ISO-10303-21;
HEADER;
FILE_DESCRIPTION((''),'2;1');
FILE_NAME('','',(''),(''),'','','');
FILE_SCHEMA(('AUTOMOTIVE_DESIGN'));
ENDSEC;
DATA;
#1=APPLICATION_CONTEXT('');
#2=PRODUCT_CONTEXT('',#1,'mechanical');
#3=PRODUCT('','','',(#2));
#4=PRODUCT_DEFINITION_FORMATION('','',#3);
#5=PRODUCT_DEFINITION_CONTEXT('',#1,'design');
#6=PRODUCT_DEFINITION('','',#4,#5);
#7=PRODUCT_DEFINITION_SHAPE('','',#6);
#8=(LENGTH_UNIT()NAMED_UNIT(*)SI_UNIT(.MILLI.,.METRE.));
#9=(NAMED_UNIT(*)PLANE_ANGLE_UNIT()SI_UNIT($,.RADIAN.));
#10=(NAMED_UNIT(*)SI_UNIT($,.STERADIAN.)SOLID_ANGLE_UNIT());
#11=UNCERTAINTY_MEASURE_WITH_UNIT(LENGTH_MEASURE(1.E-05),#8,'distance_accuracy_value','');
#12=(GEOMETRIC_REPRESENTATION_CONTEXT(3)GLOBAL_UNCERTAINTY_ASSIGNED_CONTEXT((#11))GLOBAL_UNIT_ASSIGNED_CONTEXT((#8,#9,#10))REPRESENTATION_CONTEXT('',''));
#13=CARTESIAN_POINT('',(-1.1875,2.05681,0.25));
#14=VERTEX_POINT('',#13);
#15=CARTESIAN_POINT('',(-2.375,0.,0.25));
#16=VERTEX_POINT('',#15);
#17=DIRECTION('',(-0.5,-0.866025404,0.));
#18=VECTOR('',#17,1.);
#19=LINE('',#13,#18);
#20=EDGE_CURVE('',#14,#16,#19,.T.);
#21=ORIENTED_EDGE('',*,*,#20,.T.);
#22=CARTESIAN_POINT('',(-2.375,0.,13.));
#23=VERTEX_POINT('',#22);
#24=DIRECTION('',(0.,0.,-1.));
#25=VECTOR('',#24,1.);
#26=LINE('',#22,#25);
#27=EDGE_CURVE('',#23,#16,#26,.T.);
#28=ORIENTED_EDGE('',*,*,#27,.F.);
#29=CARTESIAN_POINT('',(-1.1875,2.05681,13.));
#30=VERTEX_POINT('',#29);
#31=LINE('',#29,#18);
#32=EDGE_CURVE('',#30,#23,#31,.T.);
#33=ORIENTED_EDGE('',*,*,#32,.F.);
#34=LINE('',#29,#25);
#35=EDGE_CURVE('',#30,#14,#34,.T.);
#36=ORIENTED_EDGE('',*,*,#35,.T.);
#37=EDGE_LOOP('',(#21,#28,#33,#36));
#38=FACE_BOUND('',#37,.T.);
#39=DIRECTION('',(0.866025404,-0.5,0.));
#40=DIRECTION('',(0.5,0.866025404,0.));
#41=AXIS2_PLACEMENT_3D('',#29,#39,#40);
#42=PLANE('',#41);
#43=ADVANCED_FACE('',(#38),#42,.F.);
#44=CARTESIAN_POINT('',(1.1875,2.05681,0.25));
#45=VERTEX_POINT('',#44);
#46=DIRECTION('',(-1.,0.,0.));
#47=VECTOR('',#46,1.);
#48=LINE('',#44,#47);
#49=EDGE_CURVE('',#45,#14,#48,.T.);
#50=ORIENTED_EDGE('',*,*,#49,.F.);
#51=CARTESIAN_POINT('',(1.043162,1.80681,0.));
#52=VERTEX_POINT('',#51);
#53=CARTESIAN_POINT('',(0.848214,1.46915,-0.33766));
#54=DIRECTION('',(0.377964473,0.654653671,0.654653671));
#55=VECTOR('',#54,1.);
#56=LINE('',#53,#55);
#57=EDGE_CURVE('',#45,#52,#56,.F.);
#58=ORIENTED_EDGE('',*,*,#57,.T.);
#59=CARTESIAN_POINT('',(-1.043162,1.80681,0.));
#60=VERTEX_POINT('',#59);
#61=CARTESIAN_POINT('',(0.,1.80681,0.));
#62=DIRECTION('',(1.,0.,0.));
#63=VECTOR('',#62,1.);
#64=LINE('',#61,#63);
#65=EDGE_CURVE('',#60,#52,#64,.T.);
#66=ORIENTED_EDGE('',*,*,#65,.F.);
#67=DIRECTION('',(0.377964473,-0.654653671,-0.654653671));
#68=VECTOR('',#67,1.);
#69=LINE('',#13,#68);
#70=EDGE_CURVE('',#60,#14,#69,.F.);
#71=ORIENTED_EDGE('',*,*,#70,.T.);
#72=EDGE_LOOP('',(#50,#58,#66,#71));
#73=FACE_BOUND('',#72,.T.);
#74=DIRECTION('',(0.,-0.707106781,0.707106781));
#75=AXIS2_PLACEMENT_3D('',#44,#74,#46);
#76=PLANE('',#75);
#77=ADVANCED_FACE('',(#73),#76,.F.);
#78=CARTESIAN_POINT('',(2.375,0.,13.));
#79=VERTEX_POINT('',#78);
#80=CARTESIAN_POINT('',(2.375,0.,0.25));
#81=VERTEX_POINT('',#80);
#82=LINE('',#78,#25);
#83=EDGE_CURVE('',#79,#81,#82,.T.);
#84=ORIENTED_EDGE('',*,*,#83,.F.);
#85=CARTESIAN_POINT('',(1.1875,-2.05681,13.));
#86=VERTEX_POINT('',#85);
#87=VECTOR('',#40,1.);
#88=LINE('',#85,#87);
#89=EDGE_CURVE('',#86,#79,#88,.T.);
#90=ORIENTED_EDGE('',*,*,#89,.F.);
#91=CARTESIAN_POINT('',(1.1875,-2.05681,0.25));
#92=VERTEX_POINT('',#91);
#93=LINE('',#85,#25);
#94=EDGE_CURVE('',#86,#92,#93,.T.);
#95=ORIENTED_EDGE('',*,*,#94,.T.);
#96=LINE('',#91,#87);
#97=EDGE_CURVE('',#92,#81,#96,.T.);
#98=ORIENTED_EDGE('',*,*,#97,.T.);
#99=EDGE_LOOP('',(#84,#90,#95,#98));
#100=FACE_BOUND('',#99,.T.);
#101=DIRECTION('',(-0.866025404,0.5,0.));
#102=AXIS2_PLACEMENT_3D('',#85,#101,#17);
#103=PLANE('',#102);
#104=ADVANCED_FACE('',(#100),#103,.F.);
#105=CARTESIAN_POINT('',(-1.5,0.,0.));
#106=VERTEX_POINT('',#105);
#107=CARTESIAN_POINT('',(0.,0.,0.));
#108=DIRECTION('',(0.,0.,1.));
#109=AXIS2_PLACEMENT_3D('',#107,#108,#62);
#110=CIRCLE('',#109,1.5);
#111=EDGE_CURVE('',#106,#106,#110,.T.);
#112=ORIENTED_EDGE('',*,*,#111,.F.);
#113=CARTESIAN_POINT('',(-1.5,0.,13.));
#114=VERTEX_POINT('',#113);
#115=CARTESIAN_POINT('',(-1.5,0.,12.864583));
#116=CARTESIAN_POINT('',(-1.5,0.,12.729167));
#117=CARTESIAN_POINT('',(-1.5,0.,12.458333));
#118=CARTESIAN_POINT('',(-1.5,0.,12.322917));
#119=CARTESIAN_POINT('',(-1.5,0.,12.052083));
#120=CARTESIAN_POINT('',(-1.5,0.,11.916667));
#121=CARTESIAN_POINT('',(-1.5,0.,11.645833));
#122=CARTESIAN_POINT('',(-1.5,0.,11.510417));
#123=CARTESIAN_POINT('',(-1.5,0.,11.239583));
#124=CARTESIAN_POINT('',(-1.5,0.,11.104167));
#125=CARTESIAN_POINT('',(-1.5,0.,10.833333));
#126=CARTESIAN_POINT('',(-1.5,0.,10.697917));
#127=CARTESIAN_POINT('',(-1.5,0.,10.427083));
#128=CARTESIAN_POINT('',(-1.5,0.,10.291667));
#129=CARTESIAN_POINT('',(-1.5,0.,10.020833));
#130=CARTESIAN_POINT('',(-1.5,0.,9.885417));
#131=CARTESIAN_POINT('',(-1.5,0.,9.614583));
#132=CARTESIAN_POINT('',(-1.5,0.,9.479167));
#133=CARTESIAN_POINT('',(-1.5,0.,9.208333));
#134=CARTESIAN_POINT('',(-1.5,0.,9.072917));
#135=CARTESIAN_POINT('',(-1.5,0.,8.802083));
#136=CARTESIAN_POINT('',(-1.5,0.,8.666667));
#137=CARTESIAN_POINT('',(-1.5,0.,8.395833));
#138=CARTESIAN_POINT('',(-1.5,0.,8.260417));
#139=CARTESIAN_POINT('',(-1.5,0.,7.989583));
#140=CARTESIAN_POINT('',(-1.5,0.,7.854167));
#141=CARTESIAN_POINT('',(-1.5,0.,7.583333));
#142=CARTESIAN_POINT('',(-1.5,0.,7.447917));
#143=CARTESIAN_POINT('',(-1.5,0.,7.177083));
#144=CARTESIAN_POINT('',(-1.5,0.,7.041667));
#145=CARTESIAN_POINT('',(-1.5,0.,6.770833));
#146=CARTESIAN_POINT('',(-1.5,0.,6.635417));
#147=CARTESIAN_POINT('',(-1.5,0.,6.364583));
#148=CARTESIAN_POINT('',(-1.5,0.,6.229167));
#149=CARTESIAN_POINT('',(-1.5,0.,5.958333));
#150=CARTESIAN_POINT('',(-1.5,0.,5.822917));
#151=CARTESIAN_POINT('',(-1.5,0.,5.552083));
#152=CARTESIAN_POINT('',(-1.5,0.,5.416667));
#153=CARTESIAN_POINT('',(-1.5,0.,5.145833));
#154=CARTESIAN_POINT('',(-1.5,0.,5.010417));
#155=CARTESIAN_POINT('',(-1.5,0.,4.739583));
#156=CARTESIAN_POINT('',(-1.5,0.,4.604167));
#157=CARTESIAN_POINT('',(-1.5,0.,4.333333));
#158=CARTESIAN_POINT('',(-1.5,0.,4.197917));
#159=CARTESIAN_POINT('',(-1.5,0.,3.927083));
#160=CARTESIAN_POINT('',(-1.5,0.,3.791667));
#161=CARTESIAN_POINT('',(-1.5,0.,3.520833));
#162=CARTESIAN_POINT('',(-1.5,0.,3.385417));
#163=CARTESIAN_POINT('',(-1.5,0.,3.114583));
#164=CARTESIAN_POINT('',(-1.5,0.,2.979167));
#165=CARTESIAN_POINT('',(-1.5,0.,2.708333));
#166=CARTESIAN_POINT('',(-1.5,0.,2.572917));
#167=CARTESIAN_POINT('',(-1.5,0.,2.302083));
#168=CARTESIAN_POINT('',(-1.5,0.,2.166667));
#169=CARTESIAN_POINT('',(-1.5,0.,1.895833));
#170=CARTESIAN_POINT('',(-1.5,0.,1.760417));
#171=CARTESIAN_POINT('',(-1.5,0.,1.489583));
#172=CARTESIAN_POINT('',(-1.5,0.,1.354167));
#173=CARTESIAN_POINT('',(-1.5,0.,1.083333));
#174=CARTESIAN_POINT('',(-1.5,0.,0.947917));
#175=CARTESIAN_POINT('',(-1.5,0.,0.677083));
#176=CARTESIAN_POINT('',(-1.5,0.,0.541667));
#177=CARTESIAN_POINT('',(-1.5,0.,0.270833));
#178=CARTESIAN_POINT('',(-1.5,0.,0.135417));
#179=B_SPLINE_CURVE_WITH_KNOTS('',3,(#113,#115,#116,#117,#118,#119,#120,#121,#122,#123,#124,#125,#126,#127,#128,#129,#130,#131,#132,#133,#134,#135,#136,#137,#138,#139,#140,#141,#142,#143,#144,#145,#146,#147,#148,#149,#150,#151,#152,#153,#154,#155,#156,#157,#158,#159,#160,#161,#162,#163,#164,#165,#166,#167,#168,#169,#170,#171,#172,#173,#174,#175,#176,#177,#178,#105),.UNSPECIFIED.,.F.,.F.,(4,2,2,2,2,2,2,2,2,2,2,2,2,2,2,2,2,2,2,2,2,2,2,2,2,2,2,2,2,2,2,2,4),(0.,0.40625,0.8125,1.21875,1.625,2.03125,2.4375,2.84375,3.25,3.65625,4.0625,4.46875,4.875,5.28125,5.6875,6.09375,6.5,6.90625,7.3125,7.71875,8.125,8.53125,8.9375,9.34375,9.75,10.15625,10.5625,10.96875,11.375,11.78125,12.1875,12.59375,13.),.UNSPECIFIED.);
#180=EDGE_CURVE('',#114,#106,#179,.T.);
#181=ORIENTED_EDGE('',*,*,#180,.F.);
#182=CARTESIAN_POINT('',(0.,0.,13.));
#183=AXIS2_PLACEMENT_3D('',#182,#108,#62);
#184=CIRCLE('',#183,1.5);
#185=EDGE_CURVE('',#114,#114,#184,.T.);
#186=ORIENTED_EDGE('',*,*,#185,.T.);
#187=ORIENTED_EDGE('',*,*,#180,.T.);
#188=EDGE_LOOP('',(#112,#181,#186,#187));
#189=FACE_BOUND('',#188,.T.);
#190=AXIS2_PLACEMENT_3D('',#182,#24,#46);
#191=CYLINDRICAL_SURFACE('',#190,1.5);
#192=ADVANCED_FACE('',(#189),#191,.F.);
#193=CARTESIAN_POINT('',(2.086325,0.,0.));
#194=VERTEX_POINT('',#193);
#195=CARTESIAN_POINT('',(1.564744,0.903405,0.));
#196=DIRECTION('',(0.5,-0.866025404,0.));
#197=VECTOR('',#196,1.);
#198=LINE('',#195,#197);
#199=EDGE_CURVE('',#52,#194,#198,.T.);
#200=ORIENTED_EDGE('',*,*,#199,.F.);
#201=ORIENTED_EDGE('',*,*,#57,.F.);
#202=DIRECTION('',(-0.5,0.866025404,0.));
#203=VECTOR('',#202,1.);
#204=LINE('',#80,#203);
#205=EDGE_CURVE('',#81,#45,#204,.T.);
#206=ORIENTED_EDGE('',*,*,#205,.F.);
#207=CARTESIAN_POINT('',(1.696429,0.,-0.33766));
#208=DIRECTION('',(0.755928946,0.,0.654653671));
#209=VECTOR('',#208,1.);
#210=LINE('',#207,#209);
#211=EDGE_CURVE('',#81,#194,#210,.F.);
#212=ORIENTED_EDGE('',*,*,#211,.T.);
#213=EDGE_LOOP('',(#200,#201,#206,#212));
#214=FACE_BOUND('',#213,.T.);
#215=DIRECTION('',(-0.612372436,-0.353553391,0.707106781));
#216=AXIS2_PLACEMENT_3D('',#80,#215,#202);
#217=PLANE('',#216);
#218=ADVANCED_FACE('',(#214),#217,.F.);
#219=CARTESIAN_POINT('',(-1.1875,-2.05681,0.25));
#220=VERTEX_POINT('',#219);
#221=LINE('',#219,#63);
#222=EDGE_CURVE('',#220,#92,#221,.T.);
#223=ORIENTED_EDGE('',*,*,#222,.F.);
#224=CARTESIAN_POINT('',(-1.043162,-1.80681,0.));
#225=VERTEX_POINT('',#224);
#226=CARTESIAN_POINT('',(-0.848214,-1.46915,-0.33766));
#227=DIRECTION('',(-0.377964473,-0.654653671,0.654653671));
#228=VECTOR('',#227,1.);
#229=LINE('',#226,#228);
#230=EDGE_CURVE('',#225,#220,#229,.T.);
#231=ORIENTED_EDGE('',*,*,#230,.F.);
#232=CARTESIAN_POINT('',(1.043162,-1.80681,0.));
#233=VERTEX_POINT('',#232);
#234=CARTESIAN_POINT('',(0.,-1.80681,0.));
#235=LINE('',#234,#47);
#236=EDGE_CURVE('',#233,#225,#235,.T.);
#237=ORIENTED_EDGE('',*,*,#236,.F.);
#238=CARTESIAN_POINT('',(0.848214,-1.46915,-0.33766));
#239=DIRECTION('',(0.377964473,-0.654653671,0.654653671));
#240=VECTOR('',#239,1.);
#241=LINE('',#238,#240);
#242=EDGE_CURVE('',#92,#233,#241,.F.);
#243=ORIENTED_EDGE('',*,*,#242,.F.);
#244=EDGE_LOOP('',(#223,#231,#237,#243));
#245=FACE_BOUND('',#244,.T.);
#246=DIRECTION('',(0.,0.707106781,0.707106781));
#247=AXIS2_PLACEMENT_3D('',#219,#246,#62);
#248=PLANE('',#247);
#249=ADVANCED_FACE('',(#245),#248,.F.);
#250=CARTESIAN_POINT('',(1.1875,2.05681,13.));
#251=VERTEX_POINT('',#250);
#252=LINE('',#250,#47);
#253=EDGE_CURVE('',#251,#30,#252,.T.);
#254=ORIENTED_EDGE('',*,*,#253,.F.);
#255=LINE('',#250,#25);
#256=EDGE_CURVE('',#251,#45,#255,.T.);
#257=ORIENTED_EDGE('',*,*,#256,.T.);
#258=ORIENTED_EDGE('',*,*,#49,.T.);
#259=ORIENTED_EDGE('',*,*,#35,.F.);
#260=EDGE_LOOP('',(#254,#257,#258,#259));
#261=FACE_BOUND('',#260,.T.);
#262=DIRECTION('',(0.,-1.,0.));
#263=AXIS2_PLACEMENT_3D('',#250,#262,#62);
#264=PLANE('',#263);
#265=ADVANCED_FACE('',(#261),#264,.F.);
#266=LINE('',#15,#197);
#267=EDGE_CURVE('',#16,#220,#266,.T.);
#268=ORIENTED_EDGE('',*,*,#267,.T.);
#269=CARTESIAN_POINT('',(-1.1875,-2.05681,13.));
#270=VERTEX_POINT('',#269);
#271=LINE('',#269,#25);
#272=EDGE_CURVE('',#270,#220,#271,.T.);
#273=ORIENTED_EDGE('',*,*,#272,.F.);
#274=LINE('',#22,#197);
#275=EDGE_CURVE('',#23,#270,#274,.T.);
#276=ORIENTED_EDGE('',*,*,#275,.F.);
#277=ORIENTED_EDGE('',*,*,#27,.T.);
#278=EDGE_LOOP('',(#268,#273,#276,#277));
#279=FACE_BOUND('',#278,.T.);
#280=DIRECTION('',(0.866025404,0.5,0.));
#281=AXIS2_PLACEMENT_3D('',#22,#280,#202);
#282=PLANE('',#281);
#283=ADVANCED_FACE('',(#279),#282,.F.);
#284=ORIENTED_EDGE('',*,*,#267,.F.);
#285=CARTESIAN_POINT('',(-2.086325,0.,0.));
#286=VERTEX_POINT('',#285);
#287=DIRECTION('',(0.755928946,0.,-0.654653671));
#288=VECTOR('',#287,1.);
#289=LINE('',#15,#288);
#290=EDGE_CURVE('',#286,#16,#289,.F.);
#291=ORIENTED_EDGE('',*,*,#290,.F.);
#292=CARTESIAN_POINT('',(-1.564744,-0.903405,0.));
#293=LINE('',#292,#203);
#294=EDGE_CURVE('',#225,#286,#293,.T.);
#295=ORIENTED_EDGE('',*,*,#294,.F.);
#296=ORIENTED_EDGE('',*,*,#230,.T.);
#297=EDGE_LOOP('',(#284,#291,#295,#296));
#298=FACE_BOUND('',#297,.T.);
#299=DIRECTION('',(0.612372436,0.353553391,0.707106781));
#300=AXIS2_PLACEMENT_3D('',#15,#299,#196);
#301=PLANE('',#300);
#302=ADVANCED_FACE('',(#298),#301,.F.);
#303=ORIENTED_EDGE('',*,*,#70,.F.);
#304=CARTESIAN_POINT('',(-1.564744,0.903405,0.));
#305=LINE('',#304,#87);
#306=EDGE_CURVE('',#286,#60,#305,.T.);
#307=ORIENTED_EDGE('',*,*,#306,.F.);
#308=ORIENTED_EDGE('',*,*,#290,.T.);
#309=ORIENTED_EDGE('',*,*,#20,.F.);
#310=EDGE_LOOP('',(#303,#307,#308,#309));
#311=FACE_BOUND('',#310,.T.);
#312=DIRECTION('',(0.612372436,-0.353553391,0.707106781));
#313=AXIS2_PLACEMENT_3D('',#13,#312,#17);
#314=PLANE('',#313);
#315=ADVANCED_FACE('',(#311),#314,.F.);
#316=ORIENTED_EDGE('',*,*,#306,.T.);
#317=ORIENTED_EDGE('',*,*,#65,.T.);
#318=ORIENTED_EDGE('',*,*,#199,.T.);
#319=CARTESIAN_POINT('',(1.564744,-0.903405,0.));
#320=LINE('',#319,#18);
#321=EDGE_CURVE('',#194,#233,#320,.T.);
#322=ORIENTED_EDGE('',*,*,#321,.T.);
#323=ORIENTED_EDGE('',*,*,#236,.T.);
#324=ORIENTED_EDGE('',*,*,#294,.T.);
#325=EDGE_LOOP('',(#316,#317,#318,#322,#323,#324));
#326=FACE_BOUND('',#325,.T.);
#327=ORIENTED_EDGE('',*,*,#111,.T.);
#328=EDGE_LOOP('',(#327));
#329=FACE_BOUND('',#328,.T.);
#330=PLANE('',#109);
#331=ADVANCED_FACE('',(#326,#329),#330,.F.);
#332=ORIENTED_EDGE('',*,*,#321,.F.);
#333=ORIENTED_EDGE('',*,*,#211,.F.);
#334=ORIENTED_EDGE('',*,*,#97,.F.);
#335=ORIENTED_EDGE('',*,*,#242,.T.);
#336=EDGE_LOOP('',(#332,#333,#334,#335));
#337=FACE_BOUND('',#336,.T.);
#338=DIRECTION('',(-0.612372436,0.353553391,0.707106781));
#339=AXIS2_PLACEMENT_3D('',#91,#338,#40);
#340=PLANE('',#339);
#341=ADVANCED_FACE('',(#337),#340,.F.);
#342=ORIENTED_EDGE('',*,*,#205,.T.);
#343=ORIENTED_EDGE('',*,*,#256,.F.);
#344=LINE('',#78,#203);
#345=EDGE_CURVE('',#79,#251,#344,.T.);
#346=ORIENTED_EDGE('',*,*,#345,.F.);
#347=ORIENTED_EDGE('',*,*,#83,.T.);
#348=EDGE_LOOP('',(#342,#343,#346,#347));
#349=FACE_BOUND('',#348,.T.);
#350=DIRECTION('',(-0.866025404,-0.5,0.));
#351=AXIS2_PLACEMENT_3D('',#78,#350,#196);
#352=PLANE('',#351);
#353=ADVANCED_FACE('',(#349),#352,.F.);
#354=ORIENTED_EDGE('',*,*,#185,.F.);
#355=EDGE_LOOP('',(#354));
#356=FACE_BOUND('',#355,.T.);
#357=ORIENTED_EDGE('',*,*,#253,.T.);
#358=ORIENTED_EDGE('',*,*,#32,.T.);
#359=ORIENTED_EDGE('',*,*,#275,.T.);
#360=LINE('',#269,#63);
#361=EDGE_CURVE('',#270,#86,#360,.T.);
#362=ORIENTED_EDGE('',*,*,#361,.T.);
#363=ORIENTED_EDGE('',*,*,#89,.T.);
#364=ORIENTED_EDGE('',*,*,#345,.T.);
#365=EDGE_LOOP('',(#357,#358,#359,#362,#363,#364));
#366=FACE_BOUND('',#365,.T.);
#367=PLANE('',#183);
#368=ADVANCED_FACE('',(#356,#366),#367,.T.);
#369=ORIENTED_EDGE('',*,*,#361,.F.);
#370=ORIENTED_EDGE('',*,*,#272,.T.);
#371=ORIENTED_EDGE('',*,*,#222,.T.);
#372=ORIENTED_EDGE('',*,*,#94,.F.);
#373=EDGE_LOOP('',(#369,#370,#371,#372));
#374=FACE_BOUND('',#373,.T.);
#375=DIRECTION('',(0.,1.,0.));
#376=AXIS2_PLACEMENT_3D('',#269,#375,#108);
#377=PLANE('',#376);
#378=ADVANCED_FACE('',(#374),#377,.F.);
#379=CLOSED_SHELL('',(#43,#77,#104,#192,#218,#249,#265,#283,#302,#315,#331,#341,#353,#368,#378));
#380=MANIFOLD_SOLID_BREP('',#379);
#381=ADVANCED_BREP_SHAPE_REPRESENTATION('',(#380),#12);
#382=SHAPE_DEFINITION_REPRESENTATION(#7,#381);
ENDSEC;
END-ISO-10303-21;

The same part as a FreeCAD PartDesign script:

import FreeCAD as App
import Part
import Sketcher
Q = App.Units.Quantity


def edges_at(feature, points):
    """Names of the edges that pass closest to the given points."""
    edges = feature.Shape.Edges
    near = lambda p: min(range(len(edges)), key=lambda i: edges[i].distToShape(Part.Vertex(*p))[0])
    return sorted({f"Edge{near(p) + 1}" for p in points})


def add_polygon(sketch, points):
    """Adds a closed chain of lines whose ends are joined by coincident constraints."""
    first, n = sketch.GeometryCount, len(points)
    for a, b in zip(points, points[1:] + points[:1]):
        sketch.addGeometry(Part.LineSegment(App.Vector(*a, 0), App.Vector(*b, 0)), False)
    for i in range(n):
        sketch.addConstraint(Sketcher.Constraint("Coincident", first + i, 2, first + (i + 1) % n, 1))

doc = App.newDocument("Part")
body = doc.addObject("PartDesign::Body", "Body")

# Sketch on XY plane
sketch1 = body.newObject("Sketcher::SketchObject", "Sketch")
sketch1.AttachmentSupport = (doc.getObject("XY_Plane"), [""])
sketch1.MapMode = "FlatFace"
add_polygon(sketch1, [(-1.2, -2.1), (1.2, -2.1), (2.4, 0), (1.2, 2.1), (-1.2, 2.1), (-2.4, 0)])  # lines 0-5
sketch1.addGeometry(Part.Circle(App.Vector(0, 0, 0), App.Vector(0, 0, 1), 1.5), False)  # 6
sketch1.addConstraint([
    Sketcher.Constraint("Horizontal", 0),
    Sketcher.Constraint("Horizontal", 3),
    Sketcher.Constraint("Coincident", 6, 3, -1, 1),
    Sketcher.Constraint("Symmetric", 0, 2, 3, 2, -1, 1),
    Sketcher.Constraint("Symmetric", 1, 2, 4, 2, -1, 1),
    Sketcher.Constraint("PointOnObject", 1, 2, -1),
    Sketcher.Constraint("Parallel", 2, 5),
    Sketcher.Constraint("Vertical", 0, 2, 2, 2),
    Sketcher.Constraint("Diameter", 6, Q("3 mm")),
    Sketcher.Constraint("Angle", 1, Q("60 deg")),
    Sketcher.Constraint("DistanceX", 0, 1, 0, 2, Q("2.375 mm")),
    Sketcher.Constraint("DistanceX", 4, 2, 1, 2, Q("4.75 mm")),
])
pad1 = body.newObject("PartDesign::Pad", "Pad")
pad1.Profile = sketch1
pad1.Length = 13
doc.recompute()

chamfer = body.newObject("PartDesign::Chamfer", "Chamfer")
chamfer.Base = (pad1, edges_at(pad1, [
    (-1.781, 1.028, 0),
    (0, 2.057, 0),
    (1.781, 1.028, 0),
    (1.781, -1.028, 0),
    (0, -2.057, 0),
    (-1.781, -1.028, 0),
]))
chamfer.Size = 0.25

doc.recompute()
